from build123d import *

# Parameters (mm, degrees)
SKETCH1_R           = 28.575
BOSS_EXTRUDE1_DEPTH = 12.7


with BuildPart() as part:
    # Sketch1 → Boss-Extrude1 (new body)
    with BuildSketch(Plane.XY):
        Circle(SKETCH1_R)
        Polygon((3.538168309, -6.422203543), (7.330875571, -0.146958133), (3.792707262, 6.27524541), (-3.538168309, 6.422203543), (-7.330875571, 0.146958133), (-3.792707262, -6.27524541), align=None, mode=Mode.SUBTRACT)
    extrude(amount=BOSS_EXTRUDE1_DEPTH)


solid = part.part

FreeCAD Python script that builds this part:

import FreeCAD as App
import Part
import Sketcher
Q = App.Units.Quantity


def add_polygon(sketch, points):
    """Adds a closed chain of lines whose ends are joined by coincident constraints."""
    first, n = sketch.GeometryCount, len(points)
    for a, b in zip(points, points[1:] + points[:1]):
        sketch.addGeometry(Part.LineSegment(App.Vector(*a, 0), App.Vector(*b, 0)), False)
    for i in range(n):
        sketch.addConstraint(Sketcher.Constraint("Coincident", first + i, 2, first + (i + 1) % n, 1))

doc = App.newDocument("Part")
body = doc.addObject("PartDesign::Body", "Body")

sketch1 = body.newObject("Sketcher::SketchObject", "Sketch")
sketch1.AttachmentSupport = (doc.getObject("XY_Plane"), [""])
sketch1.MapMode = "FlatFace"
sketch1.addGeometry(Part.Circle(App.Vector(0, 0, 0), App.Vector(0, 0, 1), 28.575), False)
add_polygon(sketch1, [(7.330876, -0.146958), (3.538168, -6.422204), (-3.792707, -6.275245), (-7.330876, 0.146958), (-3.538168, 6.422204), (3.792707, 6.275245)])
sketch1.addConstraint(Sketcher.Constraint("Coincident", 0, 3, -1, 1))
sketch1.addConstraint(Sketcher.Constraint("Symmetric", 1, 2, 4, 2, -1, 1))
sketch1.addConstraint(Sketcher.Constraint("Symmetric", 2, 2, 5, 2, -1, 1))
sketch1.addConstraint(Sketcher.Constraint("Symmetric", 3, 2, 6, 2, -1, 1))
sketch1.addConstraint(Sketcher.Constraint("Equal", 1, 2))
sketch1.addConstraint(Sketcher.Constraint("Equal", 2, 3))
sketch1.addConstraint(Sketcher.Constraint("Diameter", 0, Q("2.25 in")))
sketch1.addConstraint(Sketcher.Constraint("Distance", 1, Q("7.332348 mm")))
sketch1.addConstraint(Sketcher.Constraint("DistanceX", -1, 1, 1, 2, Q("3.538168 mm")))
sketch1.addConstraint(Sketcher.Constraint("DistanceY", -1, 1, 3, 2, Q("0.146958 mm")))
sketch1.addConstraint(Sketcher.Constraint("DistanceY", 1, 2, 2, 2, Q("0.146958 mm")))
pad1 = body.newObject("PartDesign::Pad", "Pad")
pad1.Profile = sketch1
pad1.Length = Q("0.5 in")

doc.recompute()
